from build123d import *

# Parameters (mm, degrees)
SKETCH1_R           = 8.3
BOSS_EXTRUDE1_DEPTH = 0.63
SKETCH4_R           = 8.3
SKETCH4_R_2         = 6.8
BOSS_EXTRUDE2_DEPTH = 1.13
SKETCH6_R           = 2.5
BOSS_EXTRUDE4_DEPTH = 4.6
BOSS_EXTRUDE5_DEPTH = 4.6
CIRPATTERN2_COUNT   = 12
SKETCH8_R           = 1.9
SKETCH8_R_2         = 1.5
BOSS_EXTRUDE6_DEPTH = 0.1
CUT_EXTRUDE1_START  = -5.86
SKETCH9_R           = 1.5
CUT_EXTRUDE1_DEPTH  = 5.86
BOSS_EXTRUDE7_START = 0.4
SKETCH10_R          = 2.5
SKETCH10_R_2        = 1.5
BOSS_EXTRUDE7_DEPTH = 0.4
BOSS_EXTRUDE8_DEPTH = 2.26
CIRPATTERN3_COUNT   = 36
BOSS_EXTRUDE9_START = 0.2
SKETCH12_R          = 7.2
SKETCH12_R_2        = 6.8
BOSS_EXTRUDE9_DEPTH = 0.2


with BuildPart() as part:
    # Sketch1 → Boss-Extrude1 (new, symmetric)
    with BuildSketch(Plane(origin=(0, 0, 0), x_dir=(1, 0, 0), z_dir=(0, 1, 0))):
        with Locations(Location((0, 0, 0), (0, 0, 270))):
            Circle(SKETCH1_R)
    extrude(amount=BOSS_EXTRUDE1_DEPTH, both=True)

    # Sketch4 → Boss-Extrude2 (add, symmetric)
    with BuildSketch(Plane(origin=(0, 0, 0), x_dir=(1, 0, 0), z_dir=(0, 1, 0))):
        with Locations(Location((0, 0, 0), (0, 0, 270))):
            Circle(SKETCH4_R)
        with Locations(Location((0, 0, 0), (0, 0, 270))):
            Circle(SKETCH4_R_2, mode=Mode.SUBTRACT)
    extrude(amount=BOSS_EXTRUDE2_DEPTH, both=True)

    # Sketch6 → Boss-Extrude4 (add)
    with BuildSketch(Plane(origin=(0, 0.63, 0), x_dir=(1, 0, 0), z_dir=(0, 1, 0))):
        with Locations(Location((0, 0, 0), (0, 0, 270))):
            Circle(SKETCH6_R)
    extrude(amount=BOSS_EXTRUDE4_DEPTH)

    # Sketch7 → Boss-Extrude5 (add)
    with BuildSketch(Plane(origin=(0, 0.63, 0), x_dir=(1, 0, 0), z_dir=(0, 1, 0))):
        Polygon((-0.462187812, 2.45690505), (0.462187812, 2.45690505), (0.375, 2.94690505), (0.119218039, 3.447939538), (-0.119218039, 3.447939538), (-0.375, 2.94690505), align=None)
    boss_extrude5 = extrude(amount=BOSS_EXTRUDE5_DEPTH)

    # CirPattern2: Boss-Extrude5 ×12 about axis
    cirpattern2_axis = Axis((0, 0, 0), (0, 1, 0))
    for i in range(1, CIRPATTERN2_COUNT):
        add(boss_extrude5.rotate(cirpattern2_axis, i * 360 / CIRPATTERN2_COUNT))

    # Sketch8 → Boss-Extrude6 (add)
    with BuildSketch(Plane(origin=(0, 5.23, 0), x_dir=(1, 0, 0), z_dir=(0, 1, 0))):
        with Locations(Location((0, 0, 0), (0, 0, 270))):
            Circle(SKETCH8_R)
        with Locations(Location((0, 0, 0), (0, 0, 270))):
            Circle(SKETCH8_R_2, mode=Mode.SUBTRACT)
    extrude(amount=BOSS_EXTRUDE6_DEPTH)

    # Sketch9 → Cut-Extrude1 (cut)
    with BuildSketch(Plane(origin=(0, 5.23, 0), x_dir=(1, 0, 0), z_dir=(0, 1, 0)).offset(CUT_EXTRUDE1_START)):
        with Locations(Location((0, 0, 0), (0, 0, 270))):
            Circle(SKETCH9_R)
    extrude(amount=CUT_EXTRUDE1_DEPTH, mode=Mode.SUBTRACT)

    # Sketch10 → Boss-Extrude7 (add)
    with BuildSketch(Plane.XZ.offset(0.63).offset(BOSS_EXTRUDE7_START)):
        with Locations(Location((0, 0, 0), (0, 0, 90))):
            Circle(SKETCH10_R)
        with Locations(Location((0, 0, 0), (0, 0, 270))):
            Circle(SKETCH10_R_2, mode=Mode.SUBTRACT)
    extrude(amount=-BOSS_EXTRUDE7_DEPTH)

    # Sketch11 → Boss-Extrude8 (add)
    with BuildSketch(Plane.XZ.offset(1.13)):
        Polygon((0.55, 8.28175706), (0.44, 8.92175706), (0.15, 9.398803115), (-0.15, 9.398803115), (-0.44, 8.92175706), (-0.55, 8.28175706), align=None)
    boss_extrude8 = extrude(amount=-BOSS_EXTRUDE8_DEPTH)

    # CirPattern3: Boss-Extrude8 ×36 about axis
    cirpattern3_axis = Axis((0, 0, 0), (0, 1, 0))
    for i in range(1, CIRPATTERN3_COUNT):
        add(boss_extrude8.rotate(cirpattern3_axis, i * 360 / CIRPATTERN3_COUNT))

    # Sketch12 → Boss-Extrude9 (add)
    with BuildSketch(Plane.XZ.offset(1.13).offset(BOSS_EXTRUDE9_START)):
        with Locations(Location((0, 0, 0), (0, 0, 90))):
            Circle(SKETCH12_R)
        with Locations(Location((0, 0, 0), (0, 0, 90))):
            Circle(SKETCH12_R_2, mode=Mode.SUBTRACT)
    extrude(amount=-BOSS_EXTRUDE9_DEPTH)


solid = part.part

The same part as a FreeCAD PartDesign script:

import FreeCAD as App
import Part
import Sketcher

doc = App.newDocument("Part")
body = doc.addObject("PartDesign::Body", "Body")

sketch1 = body.newObject("Sketcher::SketchObject", "Sketch")
sketch1.AttachmentSupport = (doc.getObject("XZ_Plane"), [""])
sketch1.MapMode = "FlatFace"
sketch1.addGeometry(Part.Circle(App.Vector(0, 0, 0), App.Vector(0, 0, 1), 8), False)
sketch1.addConstraint(Sketcher.Constraint("Coincident", 0, 3, -1, 1))
sketch1.addConstraint(Sketcher.Constraint("Diameter", 0, 16.6))
pad1 = body.newObject("PartDesign::Pad", "Pad")
pad1.Profile = sketch1
pad1.Length = 1.26
pad1.Midplane = True

sketch2 = body.newObject("Sketcher::SketchObject", "Sketch001")
sketch2.AttachmentSupport = (doc.getObject("XZ_Plane"), [""])
sketch2.MapMode = "FlatFace"
sketch2.addGeometry(Part.Circle(App.Vector(0, 0, 0), App.Vector(0, 0, 1), 8), False)
sketch2.addGeometry(Part.Circle(App.Vector(0, 0, 0), App.Vector(0, 0, 1), 7), False)
sketch2.addConstraint(Sketcher.Constraint("Coincident", 0, 3, -1, 1))
sketch2.addConstraint(Sketcher.Constraint("Coincident", 1, 3, -1, 1))
sketch2.addConstraint(Sketcher.Constraint("Diameter", 0, 16.6))
sketch2.addConstraint(Sketcher.Constraint("Diameter", 1, 13.6))
pad2 = body.newObject("PartDesign::Pad", "Pad001")
pad2.Profile = sketch2
pad2.Length = 2.26
pad2.Midplane = True

sketch3 = body.newObject("Sketcher::SketchObject", "Sketch002")
sketch3.AttachmentSupport = (doc.getObject("XZ_Plane"), [""])
sketch3.MapMode = "FlatFace"
sketch3.AttachmentOffset = App.Placement(App.Vector(0, 0, -0.63), App.Rotation())
sketch3.addGeometry(Part.Circle(App.Vector(0, 0, 0), App.Vector(0, 0, 1), 2.5), False)
sketch3.addConstraint(Sketcher.Constraint("Coincident", 0, 3, -1, 1))
sketch3.addConstraint(Sketcher.Constraint("Diameter", 0, 5.0))
pad3 = body.newObject("PartDesign::Pad", "Pad002")
pad3.Profile = sketch3
pad3.Length = 4.6
pad3.Reversed = True

sketch4 = body.newObject("Sketcher::SketchObject", "Sketch003")
sketch4.AttachmentSupport = (doc.getObject("XZ_Plane"), [""])
sketch4.MapMode = "FlatFace"
sketch4.AttachmentOffset = App.Placement(App.Vector(0, 0, -0.63), App.Rotation())
sketch4.addGeometry(Part.LineSegment(App.Vector(-0.46, -2.46, 0), App.Vector(0.46, -2.46, 0)), False)
sketch4.addGeometry(Part.LineSegment(App.Vector(0.46, -2.46, 0), App.Vector(0.38, -2.95, 0)), False)
sketch4.addGeometry(Part.LineSegment(App.Vector(0.38, -2.95, 0), App.Vector(0.12, -3.45, 0)), False)
sketch4.addGeometry(Part.LineSegment(App.Vector(0.12, -3.45, 0), App.Vector(-0.12, -3.45, 0)), False)
sketch4.addGeometry(Part.LineSegment(App.Vector(-0.12, -3.45, 0), App.Vector(-0.38, -2.95, 0)), False)
sketch4.addGeometry(Part.LineSegment(App.Vector(-0.38, -2.95, 0), App.Vector(-0.46, -2.46, 0)), False)
sketch4.addConstraint(Sketcher.Constraint("Coincident", 0, 2, 1, 1))
sketch4.addConstraint(Sketcher.Constraint("Coincident", 1, 2, 2, 1))
sketch4.addConstraint(Sketcher.Constraint("Coincident", 2, 2, 3, 1))
sketch4.addConstraint(Sketcher.Constraint("Coincident", 3, 2, 4, 1))
sketch4.addConstraint(Sketcher.Constraint("Coincident", 4, 2, 5, 1))
sketch4.addConstraint(Sketcher.Constraint("Coincident", 5, 2, 0, 1))
sketch4.addConstraint(Sketcher.Constraint("Horizontal", 0))
sketch4.addConstraint(Sketcher.Constraint("Horizontal", 3))
sketch4.addConstraint(Sketcher.Constraint("Symmetric", 1, 2, 4, 2, -2))
sketch4.addConstraint(Sketcher.Constraint("Equal", 2, 4))
sketch4.addConstraint(Sketcher.Constraint("Equal", 1, 5))
sketch4.addConstraint(Sketcher.Constraint("DistanceY", 1, 2, 0, 2, 0.49))
sketch4.addConstraint(Sketcher.Constraint("DistanceX", 4, 2, 1, 2, 0.75))
sketch4.addConstraint(Sketcher.Constraint("DistanceX", 0, 1, 0, 2, 0.924376))
sketch4.addConstraint(Sketcher.Constraint("DistanceX", 3, 2, 3, 1, 0.238436))
sketch4.addConstraint(Sketcher.Constraint("DistanceY", 2, 2, -1, 1, 3.44794))
sketch4.addConstraint(Sketcher.Constraint("Distance", 2, 0.562548))
pad4 = body.newObject("PartDesign::Pad", "Pad003")
pad4.Profile = sketch4
pad4.Length = 4.6
pad4.Reversed = True
doc.recompute()

polarpattern = body.newObject("PartDesign::PolarPattern", "PolarPattern")
polarpattern.Originals = [pad4]
polarpattern.Axis = (doc.getObject("Y_Axis"), [""])
polarpattern.Angle = 360
polarpattern.Occurrences = 12
body.Tip = polarpattern

sketch5 = body.newObject("Sketcher::SketchObject", "Sketch004")
sketch5.AttachmentSupport = (doc.getObject("XZ_Plane"), [""])
sketch5.MapMode = "FlatFace"
sketch5.AttachmentOffset = App.Placement(App.Vector(0, 0, -5.23), App.Rotation())
sketch5.addGeometry(Part.Circle(App.Vector(0, 0, 0), App.Vector(0, 0, 1), 1.9), False)
sketch5.addGeometry(Part.Circle(App.Vector(0, 0, 0), App.Vector(0, 0, 1), 1.5), False)
sketch5.addConstraint(Sketcher.Constraint("Coincident", 0, 3, -1, 1))
sketch5.addConstraint(Sketcher.Constraint("Coincident", 1, 3, -1, 1))
sketch5.addConstraint(Sketcher.Constraint("Diameter", 1, 3.0))
sketch5.addConstraint(Sketcher.Constraint("Diameter", 0, 3.8))
pad5 = body.newObject("PartDesign::Pad", "Pad004")
pad5.Profile = sketch5
pad5.Length = 0.1
pad5.Reversed = True

sketch6 = body.newObject("Sketcher::SketchObject", "Sketch005")
sketch6.AttachmentSupport = (doc.getObject("XZ_Plane"), [""])
sketch6.MapMode = "FlatFace"
sketch6.AttachmentOffset = App.Placement(App.Vector(0, 0, 0.63), App.Rotation())
sketch6.addGeometry(Part.Circle(App.Vector(0, 0, 0), App.Vector(0, 0, 1), 1.5), False)
sketch6.addConstraint(Sketcher.Constraint("Coincident", 0, 3, -1, 1))
sketch6.addConstraint(Sketcher.Constraint("Diameter", 0, 3.0))
pocket1 = body.newObject("PartDesign::Pocket", "Pocket")
pocket1.Profile = sketch6
pocket1.Length = 5.86

sketch7 = body.newObject("Sketcher::SketchObject", "Sketch006")
sketch7.AttachmentSupport = (doc.getObject("XZ_Plane"), [""])
sketch7.MapMode = "FlatFace"
sketch7.AttachmentOffset = App.Placement(App.Vector(0, 0, 1.03), App.Rotation())
sketch7.addGeometry(Part.Circle(App.Vector(0, 0, 0), App.Vector(0, 0, 1), 2.5), False)
sketch7.addGeometry(Part.Circle(App.Vector(0, 0, 0), App.Vector(0, 0, 1), 1.5), False)
sketch7.addConstraint(Sketcher.Constraint("Coincident", 0, 3, -1, 1))
sketch7.addConstraint(Sketcher.Constraint("Coincident", 1, 3, -1, 1))
sketch7.addConstraint(Sketcher.Constraint("Diameter", 0, 5.0))
sketch7.addConstraint(Sketcher.Constraint("Diameter", 1, 3.0))
pad6 = body.newObject("PartDesign::Pad", "Pad005")
pad6.Profile = sketch7
pad6.Length = 0.4
pad6.Reversed = True

sketch8 = body.newObject("Sketcher::SketchObject", "Sketch007")
sketch8.AttachmentSupport = (doc.getObject("XZ_Plane"), [""])
sketch8.MapMode = "FlatFace"
sketch8.AttachmentOffset = App.Placement(App.Vector(0, 0, 1.13), App.Rotation())
sketch8.addGeometry(Part.LineSegment(App.Vector(0.55, 8.28, 0), App.Vector(0.44, 8.92, 0)), False)
sketch8.addGeometry(Part.LineSegment(App.Vector(0.44, 8.92, 0), App.Vector(0.15, 9.4, 0)), False)
sketch8.addGeometry(Part.LineSegment(App.Vector(0.15, 9.4, 0), App.Vector(-0.15, 9.4, 0)), False)
sketch8.addGeometry(Part.LineSegment(App.Vector(-0.15, 9.4, 0), App.Vector(-0.44, 8.92, 0)), False)
sketch8.addGeometry(Part.LineSegment(App.Vector(-0.44, 8.92, 0), App.Vector(-0.55, 8.28, 0)), False)
sketch8.addGeometry(Part.LineSegment(App.Vector(-0.55, 8.28, 0), App.Vector(0.55, 8.28, 0)), False)
sketch8.addConstraint(Sketcher.Constraint("Coincident", 0, 2, 1, 1))
sketch8.addConstraint(Sketcher.Constraint("Coincident", 1, 2, 2, 1))
sketch8.addConstraint(Sketcher.Constraint("Coincident", 2, 2, 3, 1))
sketch8.addConstraint(Sketcher.Constraint("Coincident", 3, 2, 4, 1))
sketch8.addConstraint(Sketcher.Constraint("Coincident", 4, 2, 5, 1))
sketch8.addConstraint(Sketcher.Constraint("Coincident", 5, 2, 0, 1))
sketch8.addConstraint(Sketcher.Constraint("Horizontal", 2))
sketch8.addConstraint(Sketcher.Constraint("Horizontal", 5))
sketch8.addConstraint(Sketcher.Constraint("Symmetric", 0, 2, 3, 2, -2))
sketch8.addConstraint(Sketcher.Constraint("Equal", 1, 3))
sketch8.addConstraint(Sketcher.Constraint("Equal", 0, 4))
sketch8.addConstraint(Sketcher.Constraint("DistanceX", 2, 2, 2, 1, 0.3))
sketch8.addConstraint(Sketcher.Constraint("DistanceX", 5, 1, 5, 2, 1.1))
sketch8.addConstraint(Sketcher.Constraint("DistanceX", -1, 1, 0, 2, 0.44))
sketch8.addConstraint(Sketcher.Constraint("DistanceY", 4, 2, 3, 2, 0.64))
sketch8.addConstraint(Sketcher.Constraint("Distance", 1, 0.558277))
sketch8.addConstraint(Sketcher.Constraint("DistanceY", -1, 1, 0, 2, 8.921757))
pad7 = body.newObject("PartDesign::Pad", "Pad006")
pad7.Profile = sketch8
pad7.Length = 2.26
pad7.Reversed = True
doc.recompute()

polarpattern2 = body.newObject("PartDesign::PolarPattern", "PolarPattern001")
polarpattern2.Originals = [pad7]
polarpattern2.Axis = (doc.getObject("Y_Axis"), [""])
polarpattern2.Angle = 360
polarpattern2.Occurrences = 36
body.Tip = polarpattern2

sketch9 = body.newObject("Sketcher::SketchObject", "Sketch008")
sketch9.AttachmentSupport = (doc.getObject("XZ_Plane"), [""])
sketch9.MapMode = "FlatFace"
sketch9.AttachmentOffset = App.Placement(App.Vector(0, 0, 1.33), App.Rotation())
sketch9.addGeometry(Part.Circle(App.Vector(0, 0, 0), App.Vector(0, 0, 1), 7), False)
sketch9.addGeometry(Part.Circle(App.Vector(0, 0, 0), App.Vector(0, 0, 1), 7), False)
sketch9.addConstraint(Sketcher.Constraint("Coincident", 0, 3, -1, 1))
sketch9.addConstraint(Sketcher.Constraint("Coincident", 1, 3, -1, 1))
sketch9.addConstraint(Sketcher.Constraint("Diameter", 0, 14.4))
sketch9.addConstraint(Sketcher.Constraint("Diameter", 1, 13.6))
pad8 = body.newObject("PartDesign::Pad", "Pad007")
pad8.Profile = sketch9
pad8.Length = 0.2
pad8.Reversed = True

doc.recompute()
